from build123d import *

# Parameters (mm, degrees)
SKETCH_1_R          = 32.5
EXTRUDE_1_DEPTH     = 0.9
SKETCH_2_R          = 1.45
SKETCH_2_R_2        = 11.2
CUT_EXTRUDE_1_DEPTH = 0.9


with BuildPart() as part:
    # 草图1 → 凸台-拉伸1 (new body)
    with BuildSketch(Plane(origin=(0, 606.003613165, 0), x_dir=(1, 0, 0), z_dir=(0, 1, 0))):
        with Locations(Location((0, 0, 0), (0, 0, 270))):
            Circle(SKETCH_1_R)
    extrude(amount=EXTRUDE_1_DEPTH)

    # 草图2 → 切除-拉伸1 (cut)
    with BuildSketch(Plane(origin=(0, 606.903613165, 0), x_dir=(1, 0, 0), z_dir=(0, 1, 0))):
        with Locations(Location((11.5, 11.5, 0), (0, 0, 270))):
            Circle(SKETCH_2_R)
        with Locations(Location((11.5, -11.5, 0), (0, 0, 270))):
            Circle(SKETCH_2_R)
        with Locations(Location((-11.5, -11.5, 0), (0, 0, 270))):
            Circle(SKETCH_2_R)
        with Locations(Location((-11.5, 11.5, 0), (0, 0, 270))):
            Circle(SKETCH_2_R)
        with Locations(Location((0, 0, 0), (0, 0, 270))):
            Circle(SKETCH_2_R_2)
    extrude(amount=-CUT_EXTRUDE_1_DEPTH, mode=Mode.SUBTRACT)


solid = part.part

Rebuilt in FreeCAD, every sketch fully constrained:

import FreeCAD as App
import Part
import Sketcher
from FreeCAD import Vector

doc = App.newDocument("Part")
body = doc.addObject("PartDesign::Body", "Body")

# Sketch on XZ plane
sketch1 = body.newObject("Sketcher::SketchObject", "Sketch")
sketch1.AttachmentSupport = (doc.getObject("XZ_Plane"), [""])
sketch1.MapMode = "FlatFace"
sketch1.AttachmentOffset = App.Placement(Vector(0, 0, -606.003613), App.Rotation())
sketch1.addGeometry(Part.Circle(Vector(0, 0, 0), Vector(0, 0, 1), 32.5), False)
sketch1.addConstraint([
    Sketcher.Constraint("Coincident", 0, 3, -1, 1),
    Sketcher.Constraint("Diameter", 0, 65.0),
])
pad1 = body.newObject("PartDesign::Pad", "Pad")
pad1.Profile = sketch1
pad1.Length = 0.9
pad1.Reversed = True

# Sketch on XZ plane
sketch2 = body.newObject("Sketcher::SketchObject", "Sketch001")
sketch2.AttachmentSupport = (doc.getObject("XZ_Plane"), [""])
sketch2.MapMode = "FlatFace"
sketch2.AttachmentOffset = App.Placement(Vector(0, 0, -606.903613), App.Rotation())
sketch2.addGeometry([
    Part.Circle(Vector(11.5, -11.5, 0), Vector(0, 0, 1), 1.45),  # 0
    Part.Circle(Vector(11.5, 11.5, 0), Vector(0, 0, 1), 1.45),  # 1
    Part.Circle(Vector(-11.5, 11.5, 0), Vector(0, 0, 1), 1.45),  # 2
    Part.Circle(Vector(-11.5, -11.5, 0), Vector(0, 0, 1), 1.45),  # 3
    Part.Circle(Vector(0, 0, 0), Vector(0, 0, 1), 11.2),  # 4
], False)
sketch2.addConstraint([
    Sketcher.Constraint("Coincident", 4, 3, -1, 1),
    Sketcher.Constraint("Equal", 0, 1),
    Sketcher.Constraint("Equal", 1, 2),
    Sketcher.Constraint("Equal", 2, 3),
    Sketcher.Constraint("Symmetric", 0, 3, 2, 3, -1, 1),
    Sketcher.Constraint("Symmetric", 1, 3, 3, 3, -1, 1),
    Sketcher.Constraint("Symmetric", 1, 3, 2, 3, -2),
    Sketcher.Constraint("Diameter", 0, 2.9),
    Sketcher.Constraint("Diameter", 4, 22.4),
    Sketcher.Constraint("DistanceY", 0, 3, 1, 3, 23.0),
    Sketcher.Constraint("DistanceX", 2, 3, 1, 3, 23.0),
])
pocket1 = body.newObject("PartDesign::Pocket", "Pocket")
pocket1.Profile = sketch2
pocket1.Length = 0.9
pocket1.Reversed = True

doc.recompute()
